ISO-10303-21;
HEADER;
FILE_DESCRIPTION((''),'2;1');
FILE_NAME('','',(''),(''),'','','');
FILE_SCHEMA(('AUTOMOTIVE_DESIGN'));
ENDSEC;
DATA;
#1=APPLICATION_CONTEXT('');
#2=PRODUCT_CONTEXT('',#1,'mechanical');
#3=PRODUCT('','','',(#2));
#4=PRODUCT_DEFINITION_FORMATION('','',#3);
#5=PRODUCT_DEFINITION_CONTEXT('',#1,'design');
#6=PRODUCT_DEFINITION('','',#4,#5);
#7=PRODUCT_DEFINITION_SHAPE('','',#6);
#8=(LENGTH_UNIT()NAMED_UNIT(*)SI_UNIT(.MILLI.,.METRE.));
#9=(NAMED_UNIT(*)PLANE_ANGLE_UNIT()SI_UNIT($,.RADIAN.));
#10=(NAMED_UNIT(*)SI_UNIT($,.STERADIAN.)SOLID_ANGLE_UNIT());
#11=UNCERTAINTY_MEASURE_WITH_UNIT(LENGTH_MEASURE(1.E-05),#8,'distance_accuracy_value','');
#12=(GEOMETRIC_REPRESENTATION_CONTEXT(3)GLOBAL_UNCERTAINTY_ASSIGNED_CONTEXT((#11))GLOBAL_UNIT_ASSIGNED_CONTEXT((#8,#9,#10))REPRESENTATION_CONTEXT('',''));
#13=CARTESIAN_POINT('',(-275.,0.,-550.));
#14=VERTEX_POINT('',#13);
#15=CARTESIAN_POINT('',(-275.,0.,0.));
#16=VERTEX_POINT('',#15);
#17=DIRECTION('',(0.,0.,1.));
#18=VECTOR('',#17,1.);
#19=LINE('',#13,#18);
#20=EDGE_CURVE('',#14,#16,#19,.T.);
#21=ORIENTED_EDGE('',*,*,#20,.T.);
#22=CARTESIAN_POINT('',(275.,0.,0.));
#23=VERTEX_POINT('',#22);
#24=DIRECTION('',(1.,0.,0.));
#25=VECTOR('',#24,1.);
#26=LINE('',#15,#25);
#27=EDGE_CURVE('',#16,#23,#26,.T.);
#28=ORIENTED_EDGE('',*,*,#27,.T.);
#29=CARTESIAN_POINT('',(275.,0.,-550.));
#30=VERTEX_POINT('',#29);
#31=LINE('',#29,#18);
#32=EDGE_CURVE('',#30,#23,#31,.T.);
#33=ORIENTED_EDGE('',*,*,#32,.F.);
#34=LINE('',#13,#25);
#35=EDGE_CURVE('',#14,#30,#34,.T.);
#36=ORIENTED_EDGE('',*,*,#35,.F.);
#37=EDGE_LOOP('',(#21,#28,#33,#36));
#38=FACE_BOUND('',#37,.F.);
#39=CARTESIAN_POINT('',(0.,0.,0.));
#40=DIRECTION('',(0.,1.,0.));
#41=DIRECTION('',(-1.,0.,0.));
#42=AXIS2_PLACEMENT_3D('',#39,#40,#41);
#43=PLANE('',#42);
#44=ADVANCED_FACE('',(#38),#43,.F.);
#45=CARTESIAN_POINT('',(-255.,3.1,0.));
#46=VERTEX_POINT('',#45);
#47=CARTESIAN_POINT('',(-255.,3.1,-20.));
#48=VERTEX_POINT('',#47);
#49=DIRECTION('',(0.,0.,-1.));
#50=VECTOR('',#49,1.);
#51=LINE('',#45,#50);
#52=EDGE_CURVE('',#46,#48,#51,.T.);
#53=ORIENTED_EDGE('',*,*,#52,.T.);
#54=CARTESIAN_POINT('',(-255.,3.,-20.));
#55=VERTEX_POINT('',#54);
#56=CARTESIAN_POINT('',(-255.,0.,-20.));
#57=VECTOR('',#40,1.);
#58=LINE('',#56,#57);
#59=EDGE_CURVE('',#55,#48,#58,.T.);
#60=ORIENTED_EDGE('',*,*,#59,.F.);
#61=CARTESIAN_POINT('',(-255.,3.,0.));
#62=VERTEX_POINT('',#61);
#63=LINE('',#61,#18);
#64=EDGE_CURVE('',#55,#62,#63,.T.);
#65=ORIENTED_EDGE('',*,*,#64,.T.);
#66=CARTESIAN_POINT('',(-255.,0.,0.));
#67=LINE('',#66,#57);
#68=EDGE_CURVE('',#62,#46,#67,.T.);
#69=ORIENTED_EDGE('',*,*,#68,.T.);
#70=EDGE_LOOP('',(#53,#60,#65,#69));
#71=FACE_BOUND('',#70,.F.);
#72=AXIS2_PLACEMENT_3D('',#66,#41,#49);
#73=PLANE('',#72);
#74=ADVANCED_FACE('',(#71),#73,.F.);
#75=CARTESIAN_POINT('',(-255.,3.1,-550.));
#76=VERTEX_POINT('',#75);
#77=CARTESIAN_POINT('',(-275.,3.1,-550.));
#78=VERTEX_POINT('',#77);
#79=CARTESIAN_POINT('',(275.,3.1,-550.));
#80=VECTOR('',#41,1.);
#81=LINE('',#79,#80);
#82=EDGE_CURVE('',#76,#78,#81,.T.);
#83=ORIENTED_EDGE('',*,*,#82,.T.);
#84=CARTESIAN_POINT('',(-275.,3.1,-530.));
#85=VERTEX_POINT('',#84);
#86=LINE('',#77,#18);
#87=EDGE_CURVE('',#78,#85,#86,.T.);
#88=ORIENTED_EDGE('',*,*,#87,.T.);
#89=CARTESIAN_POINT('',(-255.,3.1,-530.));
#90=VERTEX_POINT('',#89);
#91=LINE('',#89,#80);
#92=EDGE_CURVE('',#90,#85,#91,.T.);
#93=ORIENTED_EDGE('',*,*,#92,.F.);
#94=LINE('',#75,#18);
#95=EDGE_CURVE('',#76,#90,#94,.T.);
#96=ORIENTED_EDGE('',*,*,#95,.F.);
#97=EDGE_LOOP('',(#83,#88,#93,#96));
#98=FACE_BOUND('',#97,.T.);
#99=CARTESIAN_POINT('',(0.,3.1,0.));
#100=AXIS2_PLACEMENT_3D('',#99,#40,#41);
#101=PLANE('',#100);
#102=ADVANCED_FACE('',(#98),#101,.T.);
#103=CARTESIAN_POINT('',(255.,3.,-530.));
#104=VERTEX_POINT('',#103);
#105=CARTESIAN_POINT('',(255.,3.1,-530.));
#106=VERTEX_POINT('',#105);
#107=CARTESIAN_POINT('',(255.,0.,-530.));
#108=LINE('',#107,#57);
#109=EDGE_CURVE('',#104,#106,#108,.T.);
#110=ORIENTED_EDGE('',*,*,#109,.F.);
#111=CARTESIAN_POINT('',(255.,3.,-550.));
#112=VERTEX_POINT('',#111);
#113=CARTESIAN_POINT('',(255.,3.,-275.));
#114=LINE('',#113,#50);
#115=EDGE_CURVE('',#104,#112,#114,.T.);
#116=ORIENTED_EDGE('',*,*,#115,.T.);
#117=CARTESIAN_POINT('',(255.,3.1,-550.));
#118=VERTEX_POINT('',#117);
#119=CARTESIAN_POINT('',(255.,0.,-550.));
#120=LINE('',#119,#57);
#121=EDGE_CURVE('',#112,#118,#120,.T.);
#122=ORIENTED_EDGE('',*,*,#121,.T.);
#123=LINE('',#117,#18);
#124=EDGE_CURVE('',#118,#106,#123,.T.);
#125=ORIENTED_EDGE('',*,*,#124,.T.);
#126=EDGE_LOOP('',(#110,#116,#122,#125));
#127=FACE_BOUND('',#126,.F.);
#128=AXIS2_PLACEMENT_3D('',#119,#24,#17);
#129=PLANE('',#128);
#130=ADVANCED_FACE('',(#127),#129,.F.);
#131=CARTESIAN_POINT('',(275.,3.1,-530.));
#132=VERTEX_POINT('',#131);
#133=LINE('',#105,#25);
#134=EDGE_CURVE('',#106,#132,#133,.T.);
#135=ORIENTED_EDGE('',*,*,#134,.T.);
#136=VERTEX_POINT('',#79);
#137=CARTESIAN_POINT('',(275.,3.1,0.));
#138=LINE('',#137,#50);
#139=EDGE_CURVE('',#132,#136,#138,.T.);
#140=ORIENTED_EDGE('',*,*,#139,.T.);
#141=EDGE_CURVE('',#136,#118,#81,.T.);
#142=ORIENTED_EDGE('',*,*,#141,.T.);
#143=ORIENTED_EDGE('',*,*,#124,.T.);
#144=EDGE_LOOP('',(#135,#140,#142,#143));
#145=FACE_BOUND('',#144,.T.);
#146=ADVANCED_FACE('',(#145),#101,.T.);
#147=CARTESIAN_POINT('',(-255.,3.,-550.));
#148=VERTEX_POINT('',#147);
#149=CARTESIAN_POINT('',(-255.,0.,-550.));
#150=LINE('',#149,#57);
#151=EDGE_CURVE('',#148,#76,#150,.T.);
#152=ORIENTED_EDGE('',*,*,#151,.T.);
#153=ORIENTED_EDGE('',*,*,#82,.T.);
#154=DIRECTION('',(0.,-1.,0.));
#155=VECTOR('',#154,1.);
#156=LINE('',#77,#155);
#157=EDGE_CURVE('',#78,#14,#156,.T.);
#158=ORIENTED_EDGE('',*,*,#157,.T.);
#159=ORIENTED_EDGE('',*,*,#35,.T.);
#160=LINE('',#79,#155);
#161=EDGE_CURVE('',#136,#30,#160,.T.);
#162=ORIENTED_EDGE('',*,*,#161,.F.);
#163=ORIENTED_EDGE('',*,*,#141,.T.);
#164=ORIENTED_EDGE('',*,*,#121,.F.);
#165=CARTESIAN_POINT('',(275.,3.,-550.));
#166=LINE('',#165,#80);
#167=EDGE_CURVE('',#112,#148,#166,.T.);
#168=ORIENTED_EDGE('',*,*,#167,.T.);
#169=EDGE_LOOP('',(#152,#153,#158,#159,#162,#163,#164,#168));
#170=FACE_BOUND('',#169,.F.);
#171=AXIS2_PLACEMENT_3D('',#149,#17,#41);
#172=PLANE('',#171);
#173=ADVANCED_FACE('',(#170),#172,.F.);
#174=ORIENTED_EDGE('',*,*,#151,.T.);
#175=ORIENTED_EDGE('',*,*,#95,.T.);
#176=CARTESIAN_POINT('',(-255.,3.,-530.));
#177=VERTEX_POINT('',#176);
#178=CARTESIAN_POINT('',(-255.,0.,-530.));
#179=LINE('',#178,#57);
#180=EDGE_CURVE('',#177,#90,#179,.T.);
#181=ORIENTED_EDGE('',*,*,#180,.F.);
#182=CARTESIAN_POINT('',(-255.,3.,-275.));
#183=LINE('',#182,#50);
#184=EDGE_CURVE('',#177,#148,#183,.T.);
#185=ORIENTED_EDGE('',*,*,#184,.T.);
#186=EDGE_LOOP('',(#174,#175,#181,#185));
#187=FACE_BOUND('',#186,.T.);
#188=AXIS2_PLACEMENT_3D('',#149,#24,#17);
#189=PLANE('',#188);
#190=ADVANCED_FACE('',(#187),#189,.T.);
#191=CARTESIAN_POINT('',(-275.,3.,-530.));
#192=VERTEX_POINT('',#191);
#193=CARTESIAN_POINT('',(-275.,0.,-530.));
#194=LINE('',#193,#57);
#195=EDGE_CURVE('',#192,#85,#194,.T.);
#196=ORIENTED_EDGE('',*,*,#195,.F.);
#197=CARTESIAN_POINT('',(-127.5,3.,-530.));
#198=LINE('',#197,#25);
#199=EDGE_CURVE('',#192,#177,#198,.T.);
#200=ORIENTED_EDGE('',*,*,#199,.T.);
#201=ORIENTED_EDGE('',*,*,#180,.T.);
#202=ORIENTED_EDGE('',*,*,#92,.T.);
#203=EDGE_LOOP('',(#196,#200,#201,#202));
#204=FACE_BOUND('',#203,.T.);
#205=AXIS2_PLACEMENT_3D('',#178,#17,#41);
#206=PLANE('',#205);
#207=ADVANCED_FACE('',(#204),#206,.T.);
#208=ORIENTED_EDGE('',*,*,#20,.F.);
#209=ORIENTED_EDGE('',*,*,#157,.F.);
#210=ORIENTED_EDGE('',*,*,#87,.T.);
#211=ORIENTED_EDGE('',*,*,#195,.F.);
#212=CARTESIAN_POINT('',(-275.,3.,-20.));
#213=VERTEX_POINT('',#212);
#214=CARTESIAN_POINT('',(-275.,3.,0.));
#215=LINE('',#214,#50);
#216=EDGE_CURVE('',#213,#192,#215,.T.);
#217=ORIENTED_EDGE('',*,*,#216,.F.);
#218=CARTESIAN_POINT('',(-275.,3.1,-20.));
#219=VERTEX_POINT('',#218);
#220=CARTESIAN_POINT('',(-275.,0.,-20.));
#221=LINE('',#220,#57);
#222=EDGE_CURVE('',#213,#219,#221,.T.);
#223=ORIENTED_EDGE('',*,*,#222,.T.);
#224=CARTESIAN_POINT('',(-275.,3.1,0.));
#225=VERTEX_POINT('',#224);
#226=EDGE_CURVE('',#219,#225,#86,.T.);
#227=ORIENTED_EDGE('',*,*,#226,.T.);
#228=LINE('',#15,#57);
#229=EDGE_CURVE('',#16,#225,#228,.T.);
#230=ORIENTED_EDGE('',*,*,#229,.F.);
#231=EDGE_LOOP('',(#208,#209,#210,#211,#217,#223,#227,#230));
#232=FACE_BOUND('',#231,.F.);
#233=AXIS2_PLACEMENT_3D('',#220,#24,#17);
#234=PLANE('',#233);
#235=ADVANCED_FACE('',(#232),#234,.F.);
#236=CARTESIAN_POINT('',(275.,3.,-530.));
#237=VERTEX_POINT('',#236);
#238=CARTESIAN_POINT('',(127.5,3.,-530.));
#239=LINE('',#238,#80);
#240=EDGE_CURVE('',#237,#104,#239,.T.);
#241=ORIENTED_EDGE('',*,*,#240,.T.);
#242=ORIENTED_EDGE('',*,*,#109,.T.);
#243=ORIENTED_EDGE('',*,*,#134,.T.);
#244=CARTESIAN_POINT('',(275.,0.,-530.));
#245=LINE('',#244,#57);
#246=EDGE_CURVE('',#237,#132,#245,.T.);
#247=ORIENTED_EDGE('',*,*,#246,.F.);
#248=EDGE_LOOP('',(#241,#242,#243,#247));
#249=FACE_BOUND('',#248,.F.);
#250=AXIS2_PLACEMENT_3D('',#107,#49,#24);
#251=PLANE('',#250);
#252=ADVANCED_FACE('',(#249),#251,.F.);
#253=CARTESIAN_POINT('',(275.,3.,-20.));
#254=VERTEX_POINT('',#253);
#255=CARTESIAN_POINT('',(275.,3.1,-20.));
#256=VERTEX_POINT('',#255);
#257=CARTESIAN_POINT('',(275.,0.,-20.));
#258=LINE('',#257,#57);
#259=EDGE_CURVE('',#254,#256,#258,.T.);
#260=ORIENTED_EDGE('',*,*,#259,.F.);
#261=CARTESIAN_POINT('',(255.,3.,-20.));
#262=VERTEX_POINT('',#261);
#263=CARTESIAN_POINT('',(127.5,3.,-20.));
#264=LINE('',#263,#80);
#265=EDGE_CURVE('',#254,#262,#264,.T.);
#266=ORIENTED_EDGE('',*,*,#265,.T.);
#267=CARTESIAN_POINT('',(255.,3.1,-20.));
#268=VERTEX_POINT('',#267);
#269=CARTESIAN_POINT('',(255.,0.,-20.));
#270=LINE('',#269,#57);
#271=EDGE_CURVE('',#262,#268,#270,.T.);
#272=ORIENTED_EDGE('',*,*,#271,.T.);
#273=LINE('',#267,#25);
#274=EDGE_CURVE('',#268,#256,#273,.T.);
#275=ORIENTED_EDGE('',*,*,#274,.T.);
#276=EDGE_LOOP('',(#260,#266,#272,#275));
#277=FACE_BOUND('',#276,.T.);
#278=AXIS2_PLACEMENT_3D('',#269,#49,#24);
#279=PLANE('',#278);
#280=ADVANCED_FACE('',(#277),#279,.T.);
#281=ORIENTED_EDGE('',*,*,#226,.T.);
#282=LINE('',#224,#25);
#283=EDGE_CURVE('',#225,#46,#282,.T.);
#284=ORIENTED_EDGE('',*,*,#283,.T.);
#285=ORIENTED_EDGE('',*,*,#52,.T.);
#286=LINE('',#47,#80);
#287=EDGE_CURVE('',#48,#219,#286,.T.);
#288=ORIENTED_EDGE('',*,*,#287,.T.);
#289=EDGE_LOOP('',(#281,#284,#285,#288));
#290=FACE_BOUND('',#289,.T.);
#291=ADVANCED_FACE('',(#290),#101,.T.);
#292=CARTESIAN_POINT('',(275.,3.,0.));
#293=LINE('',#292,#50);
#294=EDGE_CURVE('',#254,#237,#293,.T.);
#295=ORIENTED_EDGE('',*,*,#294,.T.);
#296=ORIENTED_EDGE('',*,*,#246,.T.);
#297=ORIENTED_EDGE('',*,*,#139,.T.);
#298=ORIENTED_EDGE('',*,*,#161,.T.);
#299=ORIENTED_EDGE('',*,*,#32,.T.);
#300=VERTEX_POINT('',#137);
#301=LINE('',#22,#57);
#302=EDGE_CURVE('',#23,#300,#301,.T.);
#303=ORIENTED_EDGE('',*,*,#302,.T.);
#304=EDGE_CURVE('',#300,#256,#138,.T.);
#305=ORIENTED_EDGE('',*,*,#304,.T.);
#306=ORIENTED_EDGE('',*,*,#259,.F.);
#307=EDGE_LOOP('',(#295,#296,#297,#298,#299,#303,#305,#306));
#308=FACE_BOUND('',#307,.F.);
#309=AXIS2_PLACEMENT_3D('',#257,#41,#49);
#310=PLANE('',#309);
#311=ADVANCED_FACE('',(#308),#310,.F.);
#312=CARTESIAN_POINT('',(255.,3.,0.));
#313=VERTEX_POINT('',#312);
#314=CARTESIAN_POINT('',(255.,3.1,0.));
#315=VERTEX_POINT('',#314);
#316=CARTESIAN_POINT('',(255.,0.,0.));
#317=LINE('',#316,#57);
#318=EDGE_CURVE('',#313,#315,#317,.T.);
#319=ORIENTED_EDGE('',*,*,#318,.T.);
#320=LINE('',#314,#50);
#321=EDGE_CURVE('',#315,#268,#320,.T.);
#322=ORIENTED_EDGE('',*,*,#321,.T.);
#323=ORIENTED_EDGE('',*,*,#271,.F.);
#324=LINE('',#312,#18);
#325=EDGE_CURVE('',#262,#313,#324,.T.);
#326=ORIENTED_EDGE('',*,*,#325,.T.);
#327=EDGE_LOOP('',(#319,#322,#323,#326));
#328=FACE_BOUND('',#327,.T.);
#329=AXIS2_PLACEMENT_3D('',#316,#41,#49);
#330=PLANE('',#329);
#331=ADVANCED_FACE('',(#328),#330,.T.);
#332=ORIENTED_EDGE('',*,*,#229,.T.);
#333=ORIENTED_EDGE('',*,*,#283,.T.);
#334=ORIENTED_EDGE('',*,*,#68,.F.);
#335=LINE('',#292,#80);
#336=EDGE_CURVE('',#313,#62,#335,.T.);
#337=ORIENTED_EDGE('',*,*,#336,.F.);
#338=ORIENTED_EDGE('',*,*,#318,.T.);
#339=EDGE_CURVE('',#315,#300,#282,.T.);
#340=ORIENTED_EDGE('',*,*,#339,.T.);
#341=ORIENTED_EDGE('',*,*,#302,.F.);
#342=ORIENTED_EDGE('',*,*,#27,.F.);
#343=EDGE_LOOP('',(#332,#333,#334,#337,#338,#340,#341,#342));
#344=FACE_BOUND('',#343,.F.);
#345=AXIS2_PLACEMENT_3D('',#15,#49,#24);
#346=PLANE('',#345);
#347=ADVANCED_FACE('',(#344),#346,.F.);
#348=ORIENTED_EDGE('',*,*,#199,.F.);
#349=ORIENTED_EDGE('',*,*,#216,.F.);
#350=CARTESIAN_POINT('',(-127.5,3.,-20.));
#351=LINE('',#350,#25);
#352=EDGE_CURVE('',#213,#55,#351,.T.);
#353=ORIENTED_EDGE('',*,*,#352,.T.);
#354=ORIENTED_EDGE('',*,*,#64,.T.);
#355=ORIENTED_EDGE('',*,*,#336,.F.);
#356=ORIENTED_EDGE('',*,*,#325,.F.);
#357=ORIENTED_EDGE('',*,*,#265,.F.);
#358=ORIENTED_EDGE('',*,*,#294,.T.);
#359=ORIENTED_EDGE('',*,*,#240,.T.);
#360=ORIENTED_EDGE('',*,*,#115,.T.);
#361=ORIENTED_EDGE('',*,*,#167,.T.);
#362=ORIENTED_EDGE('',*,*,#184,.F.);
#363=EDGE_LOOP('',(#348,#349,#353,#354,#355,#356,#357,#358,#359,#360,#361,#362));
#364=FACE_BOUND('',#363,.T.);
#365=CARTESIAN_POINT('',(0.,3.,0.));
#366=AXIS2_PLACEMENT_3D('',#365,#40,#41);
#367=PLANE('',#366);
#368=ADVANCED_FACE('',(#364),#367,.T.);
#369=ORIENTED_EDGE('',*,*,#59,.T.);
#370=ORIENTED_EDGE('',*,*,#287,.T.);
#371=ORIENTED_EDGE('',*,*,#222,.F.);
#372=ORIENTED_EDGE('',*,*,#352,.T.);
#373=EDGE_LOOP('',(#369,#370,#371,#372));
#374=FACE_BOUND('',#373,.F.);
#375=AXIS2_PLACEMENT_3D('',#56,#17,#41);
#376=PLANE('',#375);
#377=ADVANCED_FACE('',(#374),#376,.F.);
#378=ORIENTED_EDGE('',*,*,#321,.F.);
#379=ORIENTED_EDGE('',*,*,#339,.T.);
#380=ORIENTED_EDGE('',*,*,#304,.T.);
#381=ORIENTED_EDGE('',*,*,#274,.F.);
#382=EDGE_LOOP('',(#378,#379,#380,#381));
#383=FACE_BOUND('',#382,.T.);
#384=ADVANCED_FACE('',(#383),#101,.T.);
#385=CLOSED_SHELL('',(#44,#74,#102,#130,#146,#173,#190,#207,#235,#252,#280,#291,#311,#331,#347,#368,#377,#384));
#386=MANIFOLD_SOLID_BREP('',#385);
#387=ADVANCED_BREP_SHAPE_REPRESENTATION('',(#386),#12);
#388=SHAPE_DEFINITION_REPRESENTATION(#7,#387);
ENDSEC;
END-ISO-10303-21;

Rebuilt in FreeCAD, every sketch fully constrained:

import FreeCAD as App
import Part
import Sketcher

V = App.Vector

doc = App.newDocument("Part")
body = doc.addObject("PartDesign::Body", "Body")

sketch1 = body.newObject("Sketcher::SketchObject", "Sketch")
sketch1.AttachmentSupport = (doc.getObject("XZ_Plane"), [""])
sketch1.MapMode = "FlatFace"
sketch1.addGeometry([
    Part.LineSegment(V(-275, 0, 0), V(275, 0, 0)),
    Part.LineSegment(V(275, 0, 0), V(275, -550, 0)),
    Part.LineSegment(V(275, -550, 0), V(-275, -550, 0)),
    Part.LineSegment(V(-275, -550, 0), V(-275, 0, 0)),
], False)
sketch1.addConstraint([
    Sketcher.Constraint("Coincident", 0, 2, 1, 1),
    Sketcher.Constraint("Coincident", 1, 2, 2, 1),
    Sketcher.Constraint("Coincident", 2, 2, 3, 1),
    Sketcher.Constraint("Coincident", 3, 2, 0, 1),
    Sketcher.Constraint("Horizontal", 0),
    Sketcher.Constraint("Vertical", 1),
    Sketcher.Constraint("Horizontal", 2),
    Sketcher.Constraint("Vertical", 3),
    Sketcher.Constraint("Symmetric", 0, 2, 3, 2, -1, 1),
    Sketcher.Constraint("Equal", 2, 1),
    Sketcher.Constraint("DistanceX", 0, 1, 0, 2, 550.0),
])
pad1 = body.newObject("PartDesign::Pad", "Pad")
pad1.Profile = sketch1
pad1.Length = 3
pad1.Reversed = True

sketch2 = body.newObject("Sketcher::SketchObject", "Sketch001")
sketch2.AttachmentSupport = (doc.getObject("XZ_Plane"), [""])
sketch2.MapMode = "FlatFace"
sketch2.addGeometry([
    Part.LineSegment(V(-275, -20, 0), V(-275, 0, 0)),
    Part.LineSegment(V(-275, 0, 0), V(-255, 0, 0)),
    Part.LineSegment(V(-255, 0, 0), V(-255, -20, 0)),
    Part.LineSegment(V(-255, -20, 0), V(-275, -20, 0)),
    Part.LineSegment(V(255, -20, 0), V(255, 0, 0)),
    Part.LineSegment(V(255, 0, 0), V(275, 0, 0)),
    Part.LineSegment(V(275, 0, 0), V(275, -20, 0)),
    Part.LineSegment(V(275, -20, 0), V(255, -20, 0)),
    Part.LineSegment(V(-275, -550, 0), V(-275, -530, 0)),
    Part.LineSegment(V(-275, -530, 0), V(-255, -530, 0)),
    Part.LineSegment(V(-255, -530, 0), V(-255, -550, 0)),
    Part.LineSegment(V(-255, -550, 0), V(-275, -550, 0)),
    Part.LineSegment(V(255, -530, 0), V(275, -530, 0)),
    Part.LineSegment(V(275, -530, 0), V(275, -550, 0)),
    Part.LineSegment(V(275, -550, 0), V(255, -550, 0)),
    Part.LineSegment(V(255, -550, 0), V(255, -530, 0)),
], False)
sketch2.addConstraint([
    Sketcher.Constraint("Coincident", 0, 2, 1, 1),
    Sketcher.Constraint("Coincident", 1, 2, 2, 1),
    Sketcher.Constraint("Coincident", 2, 2, 3, 1),
    Sketcher.Constraint("Coincident", 3, 2, 0, 1),
    Sketcher.Constraint("Coincident", 4, 2, 5, 1),
    Sketcher.Constraint("Coincident", 5, 2, 6, 1),
    Sketcher.Constraint("Coincident", 6, 2, 7, 1),
    Sketcher.Constraint("Coincident", 7, 2, 4, 1),
    Sketcher.Constraint("Coincident", 8, 2, 9, 1),
    Sketcher.Constraint("Coincident", 9, 2, 10, 1),
    Sketcher.Constraint("Coincident", 10, 2, 11, 1),
    Sketcher.Constraint("Coincident", 11, 2, 8, 1),
    Sketcher.Constraint("Coincident", 12, 2, 13, 1),
    Sketcher.Constraint("Coincident", 13, 2, 14, 1),
    Sketcher.Constraint("Coincident", 14, 2, 15, 1),
    Sketcher.Constraint("Coincident", 15, 2, 12, 1),
    Sketcher.Constraint("Vertical", 0),
    Sketcher.Constraint("Horizontal", 1),
    Sketcher.Constraint("Vertical", 2),
    Sketcher.Constraint("Horizontal", 3),
    Sketcher.Constraint("Vertical", 4),
    Sketcher.Constraint("Horizontal", 5),
    Sketcher.Constraint("Vertical", 6),
    Sketcher.Constraint("Horizontal", 7),
    Sketcher.Constraint("Vertical", 8),
    Sketcher.Constraint("Horizontal", 9),
    Sketcher.Constraint("Vertical", 10),
    Sketcher.Constraint("Horizontal", 11),
    Sketcher.Constraint("Horizontal", 12),
    Sketcher.Constraint("Vertical", 13),
    Sketcher.Constraint("Horizontal", 14),
    Sketcher.Constraint("Vertical", 15),
    Sketcher.Constraint("Symmetric", 1, 2, 4, 2, -1, 1),
    Sketcher.Constraint("Symmetric", 0, 2, 5, 2, -2),
    Sketcher.Constraint("Symmetric", 8, 2, 12, 2, -2),
    Sketcher.Constraint("Symmetric", 10, 2, 14, 2, -2),
    Sketcher.Constraint("Horizontal", 3, 2, 6, 2),
    Sketcher.Constraint("Vertical", 3, 2, 8, 2),
    Sketcher.Constraint("Vertical", 2, 2, 9, 2),
    Sketcher.Constraint("Equal", 14, 0),
    Sketcher.Constraint("Equal", 6, 8),
    Sketcher.Constraint("DistanceX", 1, 1, 1, 2, 20.0),
    Sketcher.Constraint("DistanceY", 10, 2, -1, 1, 550.0),
    Sketcher.Constraint("DistanceX", 0, 2, 5, 2, 550.0),
])
pad2 = body.newObject("PartDesign::Pad", "Pad001")
pad2.Profile = sketch2
pad2.Length = 3.1
pad2.Reversed = True

doc.recompute()
